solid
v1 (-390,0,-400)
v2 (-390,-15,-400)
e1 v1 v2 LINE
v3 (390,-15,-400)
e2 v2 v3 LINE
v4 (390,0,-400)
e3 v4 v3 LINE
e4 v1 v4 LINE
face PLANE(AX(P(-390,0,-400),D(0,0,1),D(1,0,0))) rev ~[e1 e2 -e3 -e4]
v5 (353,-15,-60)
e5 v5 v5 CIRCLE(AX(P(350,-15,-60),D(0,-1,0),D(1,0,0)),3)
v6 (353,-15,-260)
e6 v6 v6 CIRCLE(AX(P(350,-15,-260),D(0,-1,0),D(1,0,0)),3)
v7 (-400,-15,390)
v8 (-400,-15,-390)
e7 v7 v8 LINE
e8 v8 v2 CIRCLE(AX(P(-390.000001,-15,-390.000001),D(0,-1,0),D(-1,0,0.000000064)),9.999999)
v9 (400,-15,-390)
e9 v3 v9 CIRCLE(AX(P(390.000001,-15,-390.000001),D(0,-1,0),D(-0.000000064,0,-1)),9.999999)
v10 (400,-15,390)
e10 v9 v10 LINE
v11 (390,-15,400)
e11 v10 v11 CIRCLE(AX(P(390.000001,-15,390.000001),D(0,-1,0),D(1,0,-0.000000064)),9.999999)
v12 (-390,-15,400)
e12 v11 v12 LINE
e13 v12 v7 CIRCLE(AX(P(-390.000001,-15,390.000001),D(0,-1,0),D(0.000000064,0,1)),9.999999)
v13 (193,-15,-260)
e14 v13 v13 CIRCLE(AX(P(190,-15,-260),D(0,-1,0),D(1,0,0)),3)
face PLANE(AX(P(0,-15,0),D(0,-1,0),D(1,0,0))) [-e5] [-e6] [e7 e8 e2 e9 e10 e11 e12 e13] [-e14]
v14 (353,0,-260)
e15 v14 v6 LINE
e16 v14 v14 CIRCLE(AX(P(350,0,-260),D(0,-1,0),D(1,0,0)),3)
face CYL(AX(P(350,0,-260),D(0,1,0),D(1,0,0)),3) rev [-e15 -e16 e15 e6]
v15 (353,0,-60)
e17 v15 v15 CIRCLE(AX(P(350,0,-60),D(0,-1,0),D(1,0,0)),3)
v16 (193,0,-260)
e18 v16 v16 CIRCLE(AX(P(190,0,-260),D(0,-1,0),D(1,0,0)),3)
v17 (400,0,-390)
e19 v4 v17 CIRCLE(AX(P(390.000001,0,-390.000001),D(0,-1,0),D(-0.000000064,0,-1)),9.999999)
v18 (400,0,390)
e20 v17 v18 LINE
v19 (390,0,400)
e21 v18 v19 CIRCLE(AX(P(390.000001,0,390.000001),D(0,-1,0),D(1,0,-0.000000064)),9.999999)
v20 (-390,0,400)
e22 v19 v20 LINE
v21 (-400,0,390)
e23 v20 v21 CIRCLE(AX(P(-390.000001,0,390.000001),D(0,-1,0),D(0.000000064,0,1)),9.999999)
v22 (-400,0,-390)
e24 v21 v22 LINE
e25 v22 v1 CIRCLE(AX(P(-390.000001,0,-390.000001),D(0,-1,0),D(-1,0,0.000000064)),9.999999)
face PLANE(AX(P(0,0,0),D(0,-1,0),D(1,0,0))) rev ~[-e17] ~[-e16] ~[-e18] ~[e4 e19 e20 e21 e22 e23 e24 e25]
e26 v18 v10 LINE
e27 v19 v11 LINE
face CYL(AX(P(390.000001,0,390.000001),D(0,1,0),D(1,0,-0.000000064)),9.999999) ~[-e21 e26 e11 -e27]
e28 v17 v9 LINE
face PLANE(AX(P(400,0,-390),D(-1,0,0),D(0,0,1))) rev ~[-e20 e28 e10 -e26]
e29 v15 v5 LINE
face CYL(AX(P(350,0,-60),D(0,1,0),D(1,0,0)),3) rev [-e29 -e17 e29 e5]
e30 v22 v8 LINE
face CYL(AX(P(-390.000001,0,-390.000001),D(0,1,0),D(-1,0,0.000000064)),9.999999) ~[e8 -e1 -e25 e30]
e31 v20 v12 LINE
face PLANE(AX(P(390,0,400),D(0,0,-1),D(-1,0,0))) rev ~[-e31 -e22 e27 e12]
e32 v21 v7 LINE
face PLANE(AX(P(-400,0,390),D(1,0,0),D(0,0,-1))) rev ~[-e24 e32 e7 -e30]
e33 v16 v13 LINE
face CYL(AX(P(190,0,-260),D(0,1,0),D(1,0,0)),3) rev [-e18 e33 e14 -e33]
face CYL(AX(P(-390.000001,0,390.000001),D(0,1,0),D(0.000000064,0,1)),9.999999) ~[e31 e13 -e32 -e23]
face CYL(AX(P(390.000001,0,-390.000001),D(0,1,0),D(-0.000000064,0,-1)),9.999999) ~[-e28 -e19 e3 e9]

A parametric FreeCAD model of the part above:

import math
import FreeCAD as App
import Part
import Sketcher
from FreeCAD import Vector

doc = App.newDocument("Part")
body = doc.addObject("PartDesign::Body", "Body")

sketch1 = doc.addObject("Sketcher::SketchObject", "Sketch")
body.addObject(sketch1)
sketch1.AttachmentSupport = (doc.XZ_Plane, [""])
sketch1.MapMode = "FlatFace"
sketch1.addGeometry([
    Part.ArcOfCircle(Part.Circle(Vector(390.000001, 390.000001, 0), Vector(0, 0, 1), 9.999999), math.radians(-0.000004), math.radians(90.000004)),
    Part.LineSegment(Vector(390, 400, 0), Vector(-390, 400, 0)),
    Part.ArcOfCircle(Part.Circle(Vector(-390.000001, 390.000001, 0), Vector(0, 0, 1), 9.999999), math.radians(89.999996), math.radians(180.000004)),
    Part.LineSegment(Vector(-400, 390, 0), Vector(-400, -390, 0)),
    Part.ArcOfCircle(Part.Circle(Vector(-390.000001, -390.000001, 0), Vector(0, 0, 1), 9.999999), math.radians(179.999996), math.radians(270.000004)),
    Part.LineSegment(Vector(-390, -400, 0), Vector(390, -400, 0)),
    Part.ArcOfCircle(Part.Circle(Vector(390.000001, -390.000001, 0), Vector(0, 0, 1), 9.999999), math.radians(-90.000004), math.radians(0.000004)),
    Part.LineSegment(Vector(400, -390, 0), Vector(400, 390, 0)),
    Part.Circle(Vector(190, -260, 0), Vector(0, 0, 1), 3),
    Part.Circle(Vector(350, -260, 0), Vector(0, 0, 1), 3),
    Part.Circle(Vector(350, -60, 0), Vector(0, 0, 1), 3),
], False)
sketch1.addConstraint([
    Sketcher.Constraint("Tangent", 0, 2, 1, 1),
    Sketcher.Constraint("Tangent", 1, 2, 2, 1),
    Sketcher.Constraint("Tangent", 2, 2, 3, 1),
    Sketcher.Constraint("Tangent", 3, 2, 4, 1),
    Sketcher.Constraint("Tangent", 4, 2, 5, 1),
    Sketcher.Constraint("Tangent", 5, 2, 6, 1),
    Sketcher.Constraint("Tangent", 6, 2, 7, 1),
    Sketcher.Constraint("Tangent", 7, 2, 0, 1),
    Sketcher.Constraint("Horizontal", 1),
    Sketcher.Constraint("Vertical", 3),
    Sketcher.Constraint("Horizontal", 5),
    Sketcher.Constraint("Vertical", 7),
    Sketcher.Constraint("Equal", 0, 2),
    Sketcher.Constraint("Equal", 2, 4),
    Sketcher.Constraint("Equal", 4, 6),
    Sketcher.Constraint("Equal", 8, 9),
    Sketcher.Constraint("Equal", 9, 10),
    Sketcher.Constraint("Symmetric", 0, 3, 4, 3, -1, 1),
    Sketcher.Constraint("Horizontal", 8, 3, 9, 3),
    Sketcher.Constraint("Vertical", 9, 3, 10, 3),
    Sketcher.Constraint("Equal", 5, 3),
    Sketcher.Constraint("Diameter", 8, 6.0),
    Sketcher.Constraint("Radius", 0, 9.999999),
    Sketcher.Constraint("DistanceX", 1, 2, 1, 1, 780.0),
    Sketcher.Constraint("DistanceX", -1, 1, 8, 3, 190.0),
    Sketcher.Constraint("DistanceY", 8, 3, -1, 1, 260.0),
    Sketcher.Constraint("DistanceX", -1, 1, 9, 3, 350.0),
    Sketcher.Constraint("DistanceY", 10, 3, -1, 1, 60.0),
])
pad1 = doc.addObject("PartDesign::Pad", "Pad")
body.addObject(pad1)
pad1.Profile = sketch1
pad1.Length = 15

doc.recompute()
